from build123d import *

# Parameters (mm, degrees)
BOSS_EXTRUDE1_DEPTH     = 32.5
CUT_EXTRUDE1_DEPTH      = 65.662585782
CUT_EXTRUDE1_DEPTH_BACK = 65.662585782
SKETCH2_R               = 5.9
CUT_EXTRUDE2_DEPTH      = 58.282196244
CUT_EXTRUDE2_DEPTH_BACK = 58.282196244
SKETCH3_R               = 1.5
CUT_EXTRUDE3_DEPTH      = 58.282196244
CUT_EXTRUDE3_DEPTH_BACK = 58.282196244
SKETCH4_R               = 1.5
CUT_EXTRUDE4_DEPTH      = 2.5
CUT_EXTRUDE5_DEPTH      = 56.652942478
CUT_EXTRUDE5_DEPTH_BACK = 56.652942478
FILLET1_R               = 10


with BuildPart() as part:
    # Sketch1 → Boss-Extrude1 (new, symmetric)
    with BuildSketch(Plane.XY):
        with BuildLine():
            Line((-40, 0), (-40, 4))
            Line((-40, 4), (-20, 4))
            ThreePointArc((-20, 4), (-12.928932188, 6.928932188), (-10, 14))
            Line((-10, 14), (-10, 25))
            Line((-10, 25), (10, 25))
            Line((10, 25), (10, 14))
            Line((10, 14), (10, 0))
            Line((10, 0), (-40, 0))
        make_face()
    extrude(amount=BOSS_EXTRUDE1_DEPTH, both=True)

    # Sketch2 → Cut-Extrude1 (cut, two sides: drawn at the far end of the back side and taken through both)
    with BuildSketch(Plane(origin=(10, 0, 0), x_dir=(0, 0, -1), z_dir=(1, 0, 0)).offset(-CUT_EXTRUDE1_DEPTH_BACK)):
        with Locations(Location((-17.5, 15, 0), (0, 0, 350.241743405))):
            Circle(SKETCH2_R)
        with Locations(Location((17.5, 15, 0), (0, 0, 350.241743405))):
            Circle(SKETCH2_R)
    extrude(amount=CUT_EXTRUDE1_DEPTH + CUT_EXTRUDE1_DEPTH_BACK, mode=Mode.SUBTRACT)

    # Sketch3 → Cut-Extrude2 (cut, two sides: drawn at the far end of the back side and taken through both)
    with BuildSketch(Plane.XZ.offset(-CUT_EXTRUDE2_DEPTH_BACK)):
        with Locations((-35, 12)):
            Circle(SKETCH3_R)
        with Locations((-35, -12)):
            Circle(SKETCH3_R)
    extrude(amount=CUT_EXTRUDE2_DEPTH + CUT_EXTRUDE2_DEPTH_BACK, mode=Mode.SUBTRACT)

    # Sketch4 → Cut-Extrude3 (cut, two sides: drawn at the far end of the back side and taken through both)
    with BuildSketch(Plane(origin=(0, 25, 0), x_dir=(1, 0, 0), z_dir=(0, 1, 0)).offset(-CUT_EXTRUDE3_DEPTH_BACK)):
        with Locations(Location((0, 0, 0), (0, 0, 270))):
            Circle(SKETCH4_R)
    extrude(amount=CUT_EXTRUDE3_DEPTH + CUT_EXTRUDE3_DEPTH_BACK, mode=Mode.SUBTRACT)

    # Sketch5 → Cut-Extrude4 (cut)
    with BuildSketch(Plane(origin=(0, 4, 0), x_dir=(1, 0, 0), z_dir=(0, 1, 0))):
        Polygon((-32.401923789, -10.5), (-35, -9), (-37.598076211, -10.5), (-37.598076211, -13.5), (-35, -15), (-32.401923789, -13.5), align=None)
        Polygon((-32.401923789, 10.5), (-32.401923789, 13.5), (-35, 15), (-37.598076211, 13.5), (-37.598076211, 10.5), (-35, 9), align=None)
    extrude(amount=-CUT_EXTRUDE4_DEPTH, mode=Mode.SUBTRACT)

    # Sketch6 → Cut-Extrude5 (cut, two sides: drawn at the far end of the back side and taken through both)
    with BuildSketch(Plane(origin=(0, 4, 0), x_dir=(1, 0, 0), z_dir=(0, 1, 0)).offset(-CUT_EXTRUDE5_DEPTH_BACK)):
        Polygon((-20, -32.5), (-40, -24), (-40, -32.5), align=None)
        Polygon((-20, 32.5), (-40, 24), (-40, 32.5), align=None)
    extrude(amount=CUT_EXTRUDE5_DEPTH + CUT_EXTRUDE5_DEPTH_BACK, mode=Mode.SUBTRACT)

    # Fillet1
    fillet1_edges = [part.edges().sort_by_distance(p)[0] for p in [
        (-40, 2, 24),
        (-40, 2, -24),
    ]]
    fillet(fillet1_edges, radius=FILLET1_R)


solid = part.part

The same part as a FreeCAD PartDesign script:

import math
import FreeCAD as App
import Part
import Sketcher

V = App.Vector
Q = App.Units.Quantity


def edges_at(feature, points):
    """Names of the edges that pass closest to the given points."""
    edges = feature.Shape.Edges
    near = lambda p: min(range(len(edges)), key=lambda i: edges[i].distToShape(Part.Vertex(*p))[0])
    return sorted({f"Edge{near(p) + 1}" for p in points})

doc = App.newDocument("Part")
params = doc.addObject("Spreadsheet::Sheet", "Params")
for row, (alias, value) in enumerate([
    ("sketch1_radius", "10 mm"),
    ("sketch1_width", "50 mm"),
    ("sketch1_height", "4 mm"),
    ("sketch1_height2", "25 mm"),
    ("pad1_length", "65 mm"),
    ("sketch2_diameter", "11.8 mm"),
    ("sketch3_diameter", "3 mm"),
    ("sketch4_diameter", "3 mm"),
    ("sketch5_height", "3 mm"),
    ("sketch5_length", "3 mm"),
    ("pocket4_length", "2.5 mm"),
    ("sketch6_width", "20 mm"),
    ("sketch6_height", "8.5 mm"),
    ("fillet_radius", "10 mm"),
], start=1):
    params.set(f"A{row}", alias)
    params.set(f"B{row}", "=" + value)
    params.setAlias(f"B{row}", alias)

body = doc.addObject("PartDesign::Body", "Body")

sketch1 = doc.addObject("Sketcher::SketchObject", "Sketch")
body.addObject(sketch1)
sketch1.AttachmentSupport = (doc.XY_Plane, [""])
sketch1.MapMode = "FlatFace"
sketch1.addGeometry(Part.LineSegment(V(-40, 4, 0), V(-40, 0, 0)), False)
sketch1.addGeometry(Part.LineSegment(V(-40, 0, 0), V(10, 0, 0)), False)
sketch1.addGeometry(Part.LineSegment(V(10, 0, 0), V(10, 25, 0)), False)
sketch1.addGeometry(Part.LineSegment(V(10, 25, 0), V(-10, 25, 0)), False)
sketch1.addGeometry(Part.LineSegment(V(-10, 25, 0), V(-10, 14, 0)), False)
sketch1.addGeometry(Part.ArcOfCircle(Part.Circle(V(-20, 14, 0), V(0, 0, 1), 10), math.radians(-90), math.radians(0)), False)
sketch1.addGeometry(Part.LineSegment(V(-20, 4, 0), V(-40, 4, 0)), False)
sketch1.addConstraint(Sketcher.Constraint("Coincident", 0, 2, 1, 1))
sketch1.addConstraint(Sketcher.Constraint("Coincident", 1, 2, 2, 1))
sketch1.addConstraint(Sketcher.Constraint("Coincident", 2, 2, 3, 1))
sketch1.addConstraint(Sketcher.Constraint("Coincident", 3, 2, 4, 1))
sketch1.addConstraint(Sketcher.Constraint("Tangent", 4, 2, 5, 2))
sketch1.addConstraint(Sketcher.Constraint("Tangent", 5, 1, 6, 1))
sketch1.addConstraint(Sketcher.Constraint("Coincident", 6, 2, 0, 1))
sketch1.addConstraint(Sketcher.Constraint("Vertical", 0))
sketch1.addConstraint(Sketcher.Constraint("Horizontal", 1))
sketch1.addConstraint(Sketcher.Constraint("Vertical", 2))
sketch1.addConstraint(Sketcher.Constraint("Horizontal", 3))
sketch1.addConstraint(Sketcher.Constraint("Vertical", 4))
sketch1.addConstraint(Sketcher.Constraint("Horizontal", 6))
sketch1.addConstraint(Sketcher.Constraint("PointOnObject", 0, 2, -1))
sketch1.addConstraint(Sketcher.Constraint("Equal", 3, 6))
sketch1.addConstraint(Sketcher.Constraint("Radius", 5, 10.0))
sketch1.addConstraint(Sketcher.Constraint("DistanceX", 1, 1, 1, 2, 50.0))
sketch1.addConstraint(Sketcher.Constraint("DistanceY", 0, 2, 0, 1, 4.0))
sketch1.addConstraint(Sketcher.Constraint("DistanceY", 2, 1, 2, 2, 25.0))
sketch1.addConstraint(Sketcher.Constraint("DistanceX", 5, 3, -1, 1, 20.0))
sketch1.setExpression("Constraints[15]", "Params.sketch1_radius")
sketch1.setExpression("Constraints[16]", "Params.sketch1_width")
sketch1.setExpression("Constraints[17]", "Params.sketch1_height")
sketch1.setExpression("Constraints[18]", "Params.sketch1_height2")
pad1 = doc.addObject("PartDesign::Pad", "Pad")
body.addObject(pad1)
pad1.Profile = sketch1
pad1.setExpression("Length", "Params.pad1_length")
pad1.Midplane = True

sketch2 = doc.addObject("Sketcher::SketchObject", "Sketch001")
body.addObject(sketch2)
sketch2.AttachmentSupport = (doc.YZ_Plane, [""])
sketch2.MapMode = "FlatFace"
sketch2.AttachmentOffset = App.Placement(V(0, 0, 10), App.Rotation())
sketch2.addGeometry(Part.Circle(V(15, 17.5, 0), V(0, 0, 1), 5.9), False)
sketch2.addGeometry(Part.Circle(V(15, -17.5, 0), V(0, 0, 1), 5.9), False)
sketch2.addConstraint(Sketcher.Constraint("Equal", 0, 1))
sketch2.addConstraint(Sketcher.Constraint("Symmetric", 0, 3, 1, 3, -1))
sketch2.addConstraint(Sketcher.Constraint("Diameter", 0, 11.8))
sketch2.addConstraint(Sketcher.Constraint("DistanceX", -1, 1, 0, 3, 15.0))
sketch2.addConstraint(Sketcher.Constraint("DistanceY", 1, 3, 0, 3, 35.0))
sketch2.setExpression("Constraints[2]", "Params.sketch2_diameter")
pocket1 = doc.addObject("PartDesign::Pocket", "Pocket")
body.addObject(pocket1)
pocket1.Profile = sketch2
pocket1.Type = "ThroughAll"
pocket1.Midplane = True

sketch3 = doc.addObject("Sketcher::SketchObject", "Sketch002")
body.addObject(sketch3)
sketch3.AttachmentSupport = (doc.XZ_Plane, [""])
sketch3.MapMode = "FlatFace"
sketch3.addGeometry(Part.Circle(V(-35, 12, 0), V(0, 0, 1), 1.5), False)
sketch3.addGeometry(Part.Circle(V(-35, -12, 0), V(0, 0, 1), 1.5), False)
sketch3.addConstraint(Sketcher.Constraint("Equal", 0, 1))
sketch3.addConstraint(Sketcher.Constraint("Symmetric", 0, 3, 1, 3, -1))
sketch3.addConstraint(Sketcher.Constraint("Diameter", 0, 3.0))
sketch3.addConstraint(Sketcher.Constraint("DistanceX", 0, 3, -1, 1, 35.0))
sketch3.addConstraint(Sketcher.Constraint("DistanceY", -1, 1, 0, 3, 12.0))
sketch3.setExpression("Constraints[2]", "Params.sketch3_diameter")
pocket2 = doc.addObject("PartDesign::Pocket", "Pocket001")
body.addObject(pocket2)
pocket2.Profile = sketch3
pocket2.Type = "ThroughAll"
pocket2.Midplane = True

sketch4 = doc.addObject("Sketcher::SketchObject", "Sketch003")
body.addObject(sketch4)
sketch4.AttachmentSupport = (doc.XZ_Plane, [""])
sketch4.MapMode = "FlatFace"
sketch4.AttachmentOffset = App.Placement(V(0, 0, -25), App.Rotation())
sketch4.addGeometry(Part.Circle(V(0, 0, 0), V(0, 0, 1), 1.5), False)
sketch4.addConstraint(Sketcher.Constraint("Coincident", 0, 3, -1, 1))
sketch4.addConstraint(Sketcher.Constraint("Diameter", 0, 3.0))
sketch4.setExpression("Constraints[1]", "Params.sketch4_diameter")
pocket3 = doc.addObject("PartDesign::Pocket", "Pocket002")
body.addObject(pocket3)
pocket3.Profile = sketch4
pocket3.Type = "ThroughAll"
pocket3.Midplane = True

sketch5 = doc.addObject("Sketcher::SketchObject", "Sketch004")
body.addObject(sketch5)
sketch5.AttachmentSupport = (doc.XZ_Plane, [""])
sketch5.MapMode = "FlatFace"
sketch5.AttachmentOffset = App.Placement(V(0, 0, -4), App.Rotation())
sketch5.addGeometry(Part.LineSegment(V(-32.401924, 10.5, 0), V(-35, 9, 0)), False)
sketch5.addGeometry(Part.LineSegment(V(-35, 9, 0), V(-37.598076, 10.5, 0)), False)
sketch5.addGeometry(Part.LineSegment(V(-37.598076, 10.5, 0), V(-37.598076, 13.5, 0)), False)
sketch5.addGeometry(Part.LineSegment(V(-37.598076, 13.5, 0), V(-35, 15, 0)), False)
sketch5.addGeometry(Part.LineSegment(V(-35, 15, 0), V(-32.401924, 13.5, 0)), False)
sketch5.addGeometry(Part.LineSegment(V(-32.401924, 13.5, 0), V(-32.401924, 10.5, 0)), False)
sketch5.addGeometry(Part.LineSegment(V(-32.401924, -10.5, 0), V(-32.401924, -13.5, 0)), False)
sketch5.addGeometry(Part.LineSegment(V(-32.401924, -13.5, 0), V(-35, -15, 0)), False)
sketch5.addGeometry(Part.LineSegment(V(-35, -15, 0), V(-37.598076, -13.5, 0)), False)
sketch5.addGeometry(Part.LineSegment(V(-37.598076, -13.5, 0), V(-37.598076, -10.5, 0)), False)
sketch5.addGeometry(Part.LineSegment(V(-37.598076, -10.5, 0), V(-35, -9, 0)), False)
sketch5.addGeometry(Part.LineSegment(V(-35, -9, 0), V(-32.401924, -10.5, 0)), False)
sketch5.addConstraint(Sketcher.Constraint("Coincident", 0, 2, 1, 1))
sketch5.addConstraint(Sketcher.Constraint("Coincident", 1, 2, 2, 1))
sketch5.addConstraint(Sketcher.Constraint("Coincident", 2, 2, 3, 1))
sketch5.addConstraint(Sketcher.Constraint("Coincident", 3, 2, 4, 1))
sketch5.addConstraint(Sketcher.Constraint("Coincident", 4, 2, 5, 1))
sketch5.addConstraint(Sketcher.Constraint("Coincident", 5, 2, 0, 1))
sketch5.addConstraint(Sketcher.Constraint("Coincident", 6, 2, 7, 1))
sketch5.addConstraint(Sketcher.Constraint("Coincident", 7, 2, 8, 1))
sketch5.addConstraint(Sketcher.Constraint("Coincident", 8, 2, 9, 1))
sketch5.addConstraint(Sketcher.Constraint("Coincident", 9, 2, 10, 1))
sketch5.addConstraint(Sketcher.Constraint("Coincident", 10, 2, 11, 1))
sketch5.addConstraint(Sketcher.Constraint("Coincident", 11, 2, 6, 1))
sketch5.addConstraint(Sketcher.Constraint("Vertical", 2))
sketch5.addConstraint(Sketcher.Constraint("Vertical", 5))
sketch5.addConstraint(Sketcher.Constraint("Vertical", 6))
sketch5.addConstraint(Sketcher.Constraint("Vertical", 9))
sketch5.addConstraint(Sketcher.Constraint("Symmetric", 4, 2, 6, 2, -1))
sketch5.addConstraint(Sketcher.Constraint("Symmetric", 3, 2, 7, 2, -1))
sketch5.addConstraint(Sketcher.Constraint("Symmetric", 2, 2, 8, 2, -1))
sketch5.addConstraint(Sketcher.Constraint("Symmetric", 0, 2, 10, 2, -1))
sketch5.addConstraint(Sketcher.Constraint("Parallel", 0, 3))
sketch5.addConstraint(Sketcher.Constraint("Parallel", 1, 4))
sketch5.addConstraint(Sketcher.Constraint("Parallel", 3, 7))
sketch5.addConstraint(Sketcher.Constraint("Parallel", 7, 10))
sketch5.addConstraint(Sketcher.Constraint("Parallel", 8, 11))
sketch5.addConstraint(Sketcher.Constraint("Horizontal", 2, 2, 4, 2))
sketch5.addConstraint(Sketcher.Constraint("Horizontal", 1, 2, 5, 2))
sketch5.addConstraint(Sketcher.Constraint("DistanceY", 2, 1, 2, 2, 3.0))
sketch5.addConstraint(Sketcher.Constraint("Angle", 0, Q("-150 deg")))
sketch5.addConstraint(Sketcher.Constraint("Distance", 0, 3.0))
sketch5.addConstraint(Sketcher.Constraint("DistanceX", 0, 2, -1, 1, 35.0))
sketch5.addConstraint(Sketcher.Constraint("DistanceY", -1, 1, 0, 2, 9.0))
sketch5.setExpression("Constraints[27]", "Params.sketch5_height")
sketch5.setExpression("Constraints[29]", "Params.sketch5_length")
pocket4 = doc.addObject("PartDesign::Pocket", "Pocket003")
body.addObject(pocket4)
pocket4.Profile = sketch5
pocket4.setExpression("Length", "Params.pocket4_length")
pocket4.Reversed = True

sketch6 = doc.addObject("Sketcher::SketchObject", "Sketch005")
body.addObject(sketch6)
sketch6.AttachmentSupport = (doc.XZ_Plane, [""])
sketch6.MapMode = "FlatFace"
sketch6.AttachmentOffset = App.Placement(V(0, 0, -4), App.Rotation())
sketch6.addGeometry(Part.LineSegment(V(-20, 32.5, 0), V(-40, 24, 0)), False)
sketch6.addGeometry(Part.LineSegment(V(-40, 24, 0), V(-40, 32.5, 0)), False)
sketch6.addGeometry(Part.LineSegment(V(-40, 32.5, 0), V(-20, 32.5, 0)), False)
sketch6.addGeometry(Part.LineSegment(V(-40, -24, 0), V(-20, -32.5, 0)), False)
sketch6.addGeometry(Part.LineSegment(V(-20, -32.5, 0), V(-40, -32.5, 0)), False)
sketch6.addGeometry(Part.LineSegment(V(-40, -32.5, 0), V(-40, -24, 0)), False)
sketch6.addConstraint(Sketcher.Constraint("Coincident", 0, 2, 1, 1))
sketch6.addConstraint(Sketcher.Constraint("Coincident", 1, 2, 2, 1))
sketch6.addConstraint(Sketcher.Constraint("Coincident", 2, 2, 0, 1))
sketch6.addConstraint(Sketcher.Constraint("Coincident", 3, 2, 4, 1))
sketch6.addConstraint(Sketcher.Constraint("Coincident", 4, 2, 5, 1))
sketch6.addConstraint(Sketcher.Constraint("Coincident", 5, 2, 3, 1))
sketch6.addConstraint(Sketcher.Constraint("Vertical", 1))
sketch6.addConstraint(Sketcher.Constraint("Horizontal", 2))
sketch6.addConstraint(Sketcher.Constraint("Horizontal", 4))
sketch6.addConstraint(Sketcher.Constraint("Vertical", 5))
sketch6.addConstraint(Sketcher.Constraint("Symmetric", 2, 2, 3, 2, -1))
sketch6.addConstraint(Sketcher.Constraint("Symmetric", 0, 2, 5, 2, -1))
sketch6.addConstraint(Sketcher.Constraint("DistanceX", 2, 1, 2, 2, 20.0))
sketch6.addConstraint(Sketcher.Constraint("DistanceY", 1, 1, 1, 2, 8.5))
sketch6.addConstraint(Sketcher.Constraint("DistanceX", 0, 2, -1, 1, 40.0))
sketch6.addConstraint(Sketcher.Constraint("DistanceY", -1, 1, 0, 2, 24.0))
sketch6.setExpression("Constraints[12]", "Params.sketch6_width")
sketch6.setExpression("Constraints[13]", "Params.sketch6_height")
pocket5 = doc.addObject("PartDesign::Pocket", "Pocket004")
body.addObject(pocket5)
pocket5.Profile = sketch6
pocket5.Type = "ThroughAll"
pocket5.Midplane = True
doc.recompute()

fillet = doc.addObject("PartDesign::Fillet", "Fillet")
body.addObject(fillet)
fillet.Base = (pocket5, edges_at(pocket5, [(-40, 2, 24), (-40, 2, -24)]))
fillet.setExpression("Radius", "Params.fillet_radius")

doc.recompute()
